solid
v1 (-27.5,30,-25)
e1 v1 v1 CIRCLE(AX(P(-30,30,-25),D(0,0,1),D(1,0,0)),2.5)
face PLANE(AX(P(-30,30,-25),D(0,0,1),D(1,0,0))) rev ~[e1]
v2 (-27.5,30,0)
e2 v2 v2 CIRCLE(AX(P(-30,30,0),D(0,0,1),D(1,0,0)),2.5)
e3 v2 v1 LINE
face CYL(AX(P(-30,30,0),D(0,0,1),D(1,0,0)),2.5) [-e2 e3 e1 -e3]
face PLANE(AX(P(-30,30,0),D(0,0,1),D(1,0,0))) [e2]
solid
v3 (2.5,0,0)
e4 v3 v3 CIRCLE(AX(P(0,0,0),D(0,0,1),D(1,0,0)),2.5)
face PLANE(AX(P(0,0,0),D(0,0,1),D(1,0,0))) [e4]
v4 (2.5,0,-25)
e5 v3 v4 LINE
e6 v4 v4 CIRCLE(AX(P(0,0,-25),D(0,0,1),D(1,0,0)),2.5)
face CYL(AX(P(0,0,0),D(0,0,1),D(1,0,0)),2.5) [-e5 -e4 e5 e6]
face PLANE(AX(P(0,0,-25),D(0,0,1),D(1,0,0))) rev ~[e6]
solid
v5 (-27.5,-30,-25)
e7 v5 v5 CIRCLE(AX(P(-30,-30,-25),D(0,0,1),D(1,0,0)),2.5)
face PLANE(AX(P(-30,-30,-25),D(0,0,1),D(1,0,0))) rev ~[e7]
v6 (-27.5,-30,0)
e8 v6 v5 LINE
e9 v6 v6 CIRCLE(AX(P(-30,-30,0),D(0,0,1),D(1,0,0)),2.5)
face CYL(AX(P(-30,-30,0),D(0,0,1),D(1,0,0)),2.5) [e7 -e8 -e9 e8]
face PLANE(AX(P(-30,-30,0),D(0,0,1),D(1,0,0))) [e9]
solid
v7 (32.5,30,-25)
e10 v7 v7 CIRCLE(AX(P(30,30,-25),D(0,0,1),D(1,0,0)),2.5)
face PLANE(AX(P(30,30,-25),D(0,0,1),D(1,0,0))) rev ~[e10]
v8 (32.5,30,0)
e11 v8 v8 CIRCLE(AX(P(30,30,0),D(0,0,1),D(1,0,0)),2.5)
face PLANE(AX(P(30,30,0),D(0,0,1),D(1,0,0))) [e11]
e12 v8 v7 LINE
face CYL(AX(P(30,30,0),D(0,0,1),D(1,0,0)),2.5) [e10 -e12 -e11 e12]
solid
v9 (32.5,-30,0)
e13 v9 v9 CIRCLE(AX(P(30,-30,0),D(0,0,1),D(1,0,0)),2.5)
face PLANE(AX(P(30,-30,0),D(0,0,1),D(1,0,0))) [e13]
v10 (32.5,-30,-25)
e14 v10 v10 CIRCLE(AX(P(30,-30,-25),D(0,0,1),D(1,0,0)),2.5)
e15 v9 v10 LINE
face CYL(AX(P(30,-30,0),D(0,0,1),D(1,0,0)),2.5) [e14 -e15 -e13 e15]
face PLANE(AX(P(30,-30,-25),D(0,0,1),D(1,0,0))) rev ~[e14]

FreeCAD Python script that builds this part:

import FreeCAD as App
import Part
import Sketcher
Q = App.Units.Quantity

doc = App.newDocument("Part")
body = doc.addObject("PartDesign::Body", "Body")
body.AllowCompound = True

sketch1 = body.newObject("Sketcher::SketchObject", "Sketch")
sketch1.AttachmentSupport = (doc.getObject("XY_Plane"), [""])
sketch1.MapMode = "FlatFace"
sketch1.addGeometry([
    Part.Circle(App.Vector(0, 0, 0), App.Vector(0, 0, 1), 2.5),
    Part.Circle(App.Vector(30, 30, 0), App.Vector(0, 0, 1), 2.5),
    Part.Circle(App.Vector(-30, 30, 0), App.Vector(0, 0, 1), 2.5),
    Part.Circle(App.Vector(-30, -30, 0), App.Vector(0, 0, 1), 2.5),
    Part.Circle(App.Vector(30, -30, 0), App.Vector(0, 0, 1), 2.5),
], False)
sketch1.addConstraint([
    Sketcher.Constraint("Coincident", 0, 3, -1, 1),
    Sketcher.Constraint("Equal", 0, 1),
    Sketcher.Constraint("Equal", 1, 2),
    Sketcher.Constraint("Equal", 2, 3),
    Sketcher.Constraint("Equal", 3, 4),
    Sketcher.Constraint("Symmetric", 1, 3, 3, 3, -1, 1),
    Sketcher.Constraint("Symmetric", 2, 3, 4, 3, -1, 1),
    Sketcher.Constraint("Symmetric", 1, 3, 2, 3, -2),
    Sketcher.Constraint("Diameter", 0, Q("5 mm")),
    Sketcher.Constraint("DistanceX", -1, 1, 1, 3, Q("30 mm")),
    Sketcher.Constraint("DistanceY", -1, 1, 1, 3, Q("30 mm")),
])
pad1 = body.newObject("PartDesign::Pad", "Pad")
pad1.Profile = sketch1
pad1.Length = 25
pad1.Reversed = True

doc.recompute()
